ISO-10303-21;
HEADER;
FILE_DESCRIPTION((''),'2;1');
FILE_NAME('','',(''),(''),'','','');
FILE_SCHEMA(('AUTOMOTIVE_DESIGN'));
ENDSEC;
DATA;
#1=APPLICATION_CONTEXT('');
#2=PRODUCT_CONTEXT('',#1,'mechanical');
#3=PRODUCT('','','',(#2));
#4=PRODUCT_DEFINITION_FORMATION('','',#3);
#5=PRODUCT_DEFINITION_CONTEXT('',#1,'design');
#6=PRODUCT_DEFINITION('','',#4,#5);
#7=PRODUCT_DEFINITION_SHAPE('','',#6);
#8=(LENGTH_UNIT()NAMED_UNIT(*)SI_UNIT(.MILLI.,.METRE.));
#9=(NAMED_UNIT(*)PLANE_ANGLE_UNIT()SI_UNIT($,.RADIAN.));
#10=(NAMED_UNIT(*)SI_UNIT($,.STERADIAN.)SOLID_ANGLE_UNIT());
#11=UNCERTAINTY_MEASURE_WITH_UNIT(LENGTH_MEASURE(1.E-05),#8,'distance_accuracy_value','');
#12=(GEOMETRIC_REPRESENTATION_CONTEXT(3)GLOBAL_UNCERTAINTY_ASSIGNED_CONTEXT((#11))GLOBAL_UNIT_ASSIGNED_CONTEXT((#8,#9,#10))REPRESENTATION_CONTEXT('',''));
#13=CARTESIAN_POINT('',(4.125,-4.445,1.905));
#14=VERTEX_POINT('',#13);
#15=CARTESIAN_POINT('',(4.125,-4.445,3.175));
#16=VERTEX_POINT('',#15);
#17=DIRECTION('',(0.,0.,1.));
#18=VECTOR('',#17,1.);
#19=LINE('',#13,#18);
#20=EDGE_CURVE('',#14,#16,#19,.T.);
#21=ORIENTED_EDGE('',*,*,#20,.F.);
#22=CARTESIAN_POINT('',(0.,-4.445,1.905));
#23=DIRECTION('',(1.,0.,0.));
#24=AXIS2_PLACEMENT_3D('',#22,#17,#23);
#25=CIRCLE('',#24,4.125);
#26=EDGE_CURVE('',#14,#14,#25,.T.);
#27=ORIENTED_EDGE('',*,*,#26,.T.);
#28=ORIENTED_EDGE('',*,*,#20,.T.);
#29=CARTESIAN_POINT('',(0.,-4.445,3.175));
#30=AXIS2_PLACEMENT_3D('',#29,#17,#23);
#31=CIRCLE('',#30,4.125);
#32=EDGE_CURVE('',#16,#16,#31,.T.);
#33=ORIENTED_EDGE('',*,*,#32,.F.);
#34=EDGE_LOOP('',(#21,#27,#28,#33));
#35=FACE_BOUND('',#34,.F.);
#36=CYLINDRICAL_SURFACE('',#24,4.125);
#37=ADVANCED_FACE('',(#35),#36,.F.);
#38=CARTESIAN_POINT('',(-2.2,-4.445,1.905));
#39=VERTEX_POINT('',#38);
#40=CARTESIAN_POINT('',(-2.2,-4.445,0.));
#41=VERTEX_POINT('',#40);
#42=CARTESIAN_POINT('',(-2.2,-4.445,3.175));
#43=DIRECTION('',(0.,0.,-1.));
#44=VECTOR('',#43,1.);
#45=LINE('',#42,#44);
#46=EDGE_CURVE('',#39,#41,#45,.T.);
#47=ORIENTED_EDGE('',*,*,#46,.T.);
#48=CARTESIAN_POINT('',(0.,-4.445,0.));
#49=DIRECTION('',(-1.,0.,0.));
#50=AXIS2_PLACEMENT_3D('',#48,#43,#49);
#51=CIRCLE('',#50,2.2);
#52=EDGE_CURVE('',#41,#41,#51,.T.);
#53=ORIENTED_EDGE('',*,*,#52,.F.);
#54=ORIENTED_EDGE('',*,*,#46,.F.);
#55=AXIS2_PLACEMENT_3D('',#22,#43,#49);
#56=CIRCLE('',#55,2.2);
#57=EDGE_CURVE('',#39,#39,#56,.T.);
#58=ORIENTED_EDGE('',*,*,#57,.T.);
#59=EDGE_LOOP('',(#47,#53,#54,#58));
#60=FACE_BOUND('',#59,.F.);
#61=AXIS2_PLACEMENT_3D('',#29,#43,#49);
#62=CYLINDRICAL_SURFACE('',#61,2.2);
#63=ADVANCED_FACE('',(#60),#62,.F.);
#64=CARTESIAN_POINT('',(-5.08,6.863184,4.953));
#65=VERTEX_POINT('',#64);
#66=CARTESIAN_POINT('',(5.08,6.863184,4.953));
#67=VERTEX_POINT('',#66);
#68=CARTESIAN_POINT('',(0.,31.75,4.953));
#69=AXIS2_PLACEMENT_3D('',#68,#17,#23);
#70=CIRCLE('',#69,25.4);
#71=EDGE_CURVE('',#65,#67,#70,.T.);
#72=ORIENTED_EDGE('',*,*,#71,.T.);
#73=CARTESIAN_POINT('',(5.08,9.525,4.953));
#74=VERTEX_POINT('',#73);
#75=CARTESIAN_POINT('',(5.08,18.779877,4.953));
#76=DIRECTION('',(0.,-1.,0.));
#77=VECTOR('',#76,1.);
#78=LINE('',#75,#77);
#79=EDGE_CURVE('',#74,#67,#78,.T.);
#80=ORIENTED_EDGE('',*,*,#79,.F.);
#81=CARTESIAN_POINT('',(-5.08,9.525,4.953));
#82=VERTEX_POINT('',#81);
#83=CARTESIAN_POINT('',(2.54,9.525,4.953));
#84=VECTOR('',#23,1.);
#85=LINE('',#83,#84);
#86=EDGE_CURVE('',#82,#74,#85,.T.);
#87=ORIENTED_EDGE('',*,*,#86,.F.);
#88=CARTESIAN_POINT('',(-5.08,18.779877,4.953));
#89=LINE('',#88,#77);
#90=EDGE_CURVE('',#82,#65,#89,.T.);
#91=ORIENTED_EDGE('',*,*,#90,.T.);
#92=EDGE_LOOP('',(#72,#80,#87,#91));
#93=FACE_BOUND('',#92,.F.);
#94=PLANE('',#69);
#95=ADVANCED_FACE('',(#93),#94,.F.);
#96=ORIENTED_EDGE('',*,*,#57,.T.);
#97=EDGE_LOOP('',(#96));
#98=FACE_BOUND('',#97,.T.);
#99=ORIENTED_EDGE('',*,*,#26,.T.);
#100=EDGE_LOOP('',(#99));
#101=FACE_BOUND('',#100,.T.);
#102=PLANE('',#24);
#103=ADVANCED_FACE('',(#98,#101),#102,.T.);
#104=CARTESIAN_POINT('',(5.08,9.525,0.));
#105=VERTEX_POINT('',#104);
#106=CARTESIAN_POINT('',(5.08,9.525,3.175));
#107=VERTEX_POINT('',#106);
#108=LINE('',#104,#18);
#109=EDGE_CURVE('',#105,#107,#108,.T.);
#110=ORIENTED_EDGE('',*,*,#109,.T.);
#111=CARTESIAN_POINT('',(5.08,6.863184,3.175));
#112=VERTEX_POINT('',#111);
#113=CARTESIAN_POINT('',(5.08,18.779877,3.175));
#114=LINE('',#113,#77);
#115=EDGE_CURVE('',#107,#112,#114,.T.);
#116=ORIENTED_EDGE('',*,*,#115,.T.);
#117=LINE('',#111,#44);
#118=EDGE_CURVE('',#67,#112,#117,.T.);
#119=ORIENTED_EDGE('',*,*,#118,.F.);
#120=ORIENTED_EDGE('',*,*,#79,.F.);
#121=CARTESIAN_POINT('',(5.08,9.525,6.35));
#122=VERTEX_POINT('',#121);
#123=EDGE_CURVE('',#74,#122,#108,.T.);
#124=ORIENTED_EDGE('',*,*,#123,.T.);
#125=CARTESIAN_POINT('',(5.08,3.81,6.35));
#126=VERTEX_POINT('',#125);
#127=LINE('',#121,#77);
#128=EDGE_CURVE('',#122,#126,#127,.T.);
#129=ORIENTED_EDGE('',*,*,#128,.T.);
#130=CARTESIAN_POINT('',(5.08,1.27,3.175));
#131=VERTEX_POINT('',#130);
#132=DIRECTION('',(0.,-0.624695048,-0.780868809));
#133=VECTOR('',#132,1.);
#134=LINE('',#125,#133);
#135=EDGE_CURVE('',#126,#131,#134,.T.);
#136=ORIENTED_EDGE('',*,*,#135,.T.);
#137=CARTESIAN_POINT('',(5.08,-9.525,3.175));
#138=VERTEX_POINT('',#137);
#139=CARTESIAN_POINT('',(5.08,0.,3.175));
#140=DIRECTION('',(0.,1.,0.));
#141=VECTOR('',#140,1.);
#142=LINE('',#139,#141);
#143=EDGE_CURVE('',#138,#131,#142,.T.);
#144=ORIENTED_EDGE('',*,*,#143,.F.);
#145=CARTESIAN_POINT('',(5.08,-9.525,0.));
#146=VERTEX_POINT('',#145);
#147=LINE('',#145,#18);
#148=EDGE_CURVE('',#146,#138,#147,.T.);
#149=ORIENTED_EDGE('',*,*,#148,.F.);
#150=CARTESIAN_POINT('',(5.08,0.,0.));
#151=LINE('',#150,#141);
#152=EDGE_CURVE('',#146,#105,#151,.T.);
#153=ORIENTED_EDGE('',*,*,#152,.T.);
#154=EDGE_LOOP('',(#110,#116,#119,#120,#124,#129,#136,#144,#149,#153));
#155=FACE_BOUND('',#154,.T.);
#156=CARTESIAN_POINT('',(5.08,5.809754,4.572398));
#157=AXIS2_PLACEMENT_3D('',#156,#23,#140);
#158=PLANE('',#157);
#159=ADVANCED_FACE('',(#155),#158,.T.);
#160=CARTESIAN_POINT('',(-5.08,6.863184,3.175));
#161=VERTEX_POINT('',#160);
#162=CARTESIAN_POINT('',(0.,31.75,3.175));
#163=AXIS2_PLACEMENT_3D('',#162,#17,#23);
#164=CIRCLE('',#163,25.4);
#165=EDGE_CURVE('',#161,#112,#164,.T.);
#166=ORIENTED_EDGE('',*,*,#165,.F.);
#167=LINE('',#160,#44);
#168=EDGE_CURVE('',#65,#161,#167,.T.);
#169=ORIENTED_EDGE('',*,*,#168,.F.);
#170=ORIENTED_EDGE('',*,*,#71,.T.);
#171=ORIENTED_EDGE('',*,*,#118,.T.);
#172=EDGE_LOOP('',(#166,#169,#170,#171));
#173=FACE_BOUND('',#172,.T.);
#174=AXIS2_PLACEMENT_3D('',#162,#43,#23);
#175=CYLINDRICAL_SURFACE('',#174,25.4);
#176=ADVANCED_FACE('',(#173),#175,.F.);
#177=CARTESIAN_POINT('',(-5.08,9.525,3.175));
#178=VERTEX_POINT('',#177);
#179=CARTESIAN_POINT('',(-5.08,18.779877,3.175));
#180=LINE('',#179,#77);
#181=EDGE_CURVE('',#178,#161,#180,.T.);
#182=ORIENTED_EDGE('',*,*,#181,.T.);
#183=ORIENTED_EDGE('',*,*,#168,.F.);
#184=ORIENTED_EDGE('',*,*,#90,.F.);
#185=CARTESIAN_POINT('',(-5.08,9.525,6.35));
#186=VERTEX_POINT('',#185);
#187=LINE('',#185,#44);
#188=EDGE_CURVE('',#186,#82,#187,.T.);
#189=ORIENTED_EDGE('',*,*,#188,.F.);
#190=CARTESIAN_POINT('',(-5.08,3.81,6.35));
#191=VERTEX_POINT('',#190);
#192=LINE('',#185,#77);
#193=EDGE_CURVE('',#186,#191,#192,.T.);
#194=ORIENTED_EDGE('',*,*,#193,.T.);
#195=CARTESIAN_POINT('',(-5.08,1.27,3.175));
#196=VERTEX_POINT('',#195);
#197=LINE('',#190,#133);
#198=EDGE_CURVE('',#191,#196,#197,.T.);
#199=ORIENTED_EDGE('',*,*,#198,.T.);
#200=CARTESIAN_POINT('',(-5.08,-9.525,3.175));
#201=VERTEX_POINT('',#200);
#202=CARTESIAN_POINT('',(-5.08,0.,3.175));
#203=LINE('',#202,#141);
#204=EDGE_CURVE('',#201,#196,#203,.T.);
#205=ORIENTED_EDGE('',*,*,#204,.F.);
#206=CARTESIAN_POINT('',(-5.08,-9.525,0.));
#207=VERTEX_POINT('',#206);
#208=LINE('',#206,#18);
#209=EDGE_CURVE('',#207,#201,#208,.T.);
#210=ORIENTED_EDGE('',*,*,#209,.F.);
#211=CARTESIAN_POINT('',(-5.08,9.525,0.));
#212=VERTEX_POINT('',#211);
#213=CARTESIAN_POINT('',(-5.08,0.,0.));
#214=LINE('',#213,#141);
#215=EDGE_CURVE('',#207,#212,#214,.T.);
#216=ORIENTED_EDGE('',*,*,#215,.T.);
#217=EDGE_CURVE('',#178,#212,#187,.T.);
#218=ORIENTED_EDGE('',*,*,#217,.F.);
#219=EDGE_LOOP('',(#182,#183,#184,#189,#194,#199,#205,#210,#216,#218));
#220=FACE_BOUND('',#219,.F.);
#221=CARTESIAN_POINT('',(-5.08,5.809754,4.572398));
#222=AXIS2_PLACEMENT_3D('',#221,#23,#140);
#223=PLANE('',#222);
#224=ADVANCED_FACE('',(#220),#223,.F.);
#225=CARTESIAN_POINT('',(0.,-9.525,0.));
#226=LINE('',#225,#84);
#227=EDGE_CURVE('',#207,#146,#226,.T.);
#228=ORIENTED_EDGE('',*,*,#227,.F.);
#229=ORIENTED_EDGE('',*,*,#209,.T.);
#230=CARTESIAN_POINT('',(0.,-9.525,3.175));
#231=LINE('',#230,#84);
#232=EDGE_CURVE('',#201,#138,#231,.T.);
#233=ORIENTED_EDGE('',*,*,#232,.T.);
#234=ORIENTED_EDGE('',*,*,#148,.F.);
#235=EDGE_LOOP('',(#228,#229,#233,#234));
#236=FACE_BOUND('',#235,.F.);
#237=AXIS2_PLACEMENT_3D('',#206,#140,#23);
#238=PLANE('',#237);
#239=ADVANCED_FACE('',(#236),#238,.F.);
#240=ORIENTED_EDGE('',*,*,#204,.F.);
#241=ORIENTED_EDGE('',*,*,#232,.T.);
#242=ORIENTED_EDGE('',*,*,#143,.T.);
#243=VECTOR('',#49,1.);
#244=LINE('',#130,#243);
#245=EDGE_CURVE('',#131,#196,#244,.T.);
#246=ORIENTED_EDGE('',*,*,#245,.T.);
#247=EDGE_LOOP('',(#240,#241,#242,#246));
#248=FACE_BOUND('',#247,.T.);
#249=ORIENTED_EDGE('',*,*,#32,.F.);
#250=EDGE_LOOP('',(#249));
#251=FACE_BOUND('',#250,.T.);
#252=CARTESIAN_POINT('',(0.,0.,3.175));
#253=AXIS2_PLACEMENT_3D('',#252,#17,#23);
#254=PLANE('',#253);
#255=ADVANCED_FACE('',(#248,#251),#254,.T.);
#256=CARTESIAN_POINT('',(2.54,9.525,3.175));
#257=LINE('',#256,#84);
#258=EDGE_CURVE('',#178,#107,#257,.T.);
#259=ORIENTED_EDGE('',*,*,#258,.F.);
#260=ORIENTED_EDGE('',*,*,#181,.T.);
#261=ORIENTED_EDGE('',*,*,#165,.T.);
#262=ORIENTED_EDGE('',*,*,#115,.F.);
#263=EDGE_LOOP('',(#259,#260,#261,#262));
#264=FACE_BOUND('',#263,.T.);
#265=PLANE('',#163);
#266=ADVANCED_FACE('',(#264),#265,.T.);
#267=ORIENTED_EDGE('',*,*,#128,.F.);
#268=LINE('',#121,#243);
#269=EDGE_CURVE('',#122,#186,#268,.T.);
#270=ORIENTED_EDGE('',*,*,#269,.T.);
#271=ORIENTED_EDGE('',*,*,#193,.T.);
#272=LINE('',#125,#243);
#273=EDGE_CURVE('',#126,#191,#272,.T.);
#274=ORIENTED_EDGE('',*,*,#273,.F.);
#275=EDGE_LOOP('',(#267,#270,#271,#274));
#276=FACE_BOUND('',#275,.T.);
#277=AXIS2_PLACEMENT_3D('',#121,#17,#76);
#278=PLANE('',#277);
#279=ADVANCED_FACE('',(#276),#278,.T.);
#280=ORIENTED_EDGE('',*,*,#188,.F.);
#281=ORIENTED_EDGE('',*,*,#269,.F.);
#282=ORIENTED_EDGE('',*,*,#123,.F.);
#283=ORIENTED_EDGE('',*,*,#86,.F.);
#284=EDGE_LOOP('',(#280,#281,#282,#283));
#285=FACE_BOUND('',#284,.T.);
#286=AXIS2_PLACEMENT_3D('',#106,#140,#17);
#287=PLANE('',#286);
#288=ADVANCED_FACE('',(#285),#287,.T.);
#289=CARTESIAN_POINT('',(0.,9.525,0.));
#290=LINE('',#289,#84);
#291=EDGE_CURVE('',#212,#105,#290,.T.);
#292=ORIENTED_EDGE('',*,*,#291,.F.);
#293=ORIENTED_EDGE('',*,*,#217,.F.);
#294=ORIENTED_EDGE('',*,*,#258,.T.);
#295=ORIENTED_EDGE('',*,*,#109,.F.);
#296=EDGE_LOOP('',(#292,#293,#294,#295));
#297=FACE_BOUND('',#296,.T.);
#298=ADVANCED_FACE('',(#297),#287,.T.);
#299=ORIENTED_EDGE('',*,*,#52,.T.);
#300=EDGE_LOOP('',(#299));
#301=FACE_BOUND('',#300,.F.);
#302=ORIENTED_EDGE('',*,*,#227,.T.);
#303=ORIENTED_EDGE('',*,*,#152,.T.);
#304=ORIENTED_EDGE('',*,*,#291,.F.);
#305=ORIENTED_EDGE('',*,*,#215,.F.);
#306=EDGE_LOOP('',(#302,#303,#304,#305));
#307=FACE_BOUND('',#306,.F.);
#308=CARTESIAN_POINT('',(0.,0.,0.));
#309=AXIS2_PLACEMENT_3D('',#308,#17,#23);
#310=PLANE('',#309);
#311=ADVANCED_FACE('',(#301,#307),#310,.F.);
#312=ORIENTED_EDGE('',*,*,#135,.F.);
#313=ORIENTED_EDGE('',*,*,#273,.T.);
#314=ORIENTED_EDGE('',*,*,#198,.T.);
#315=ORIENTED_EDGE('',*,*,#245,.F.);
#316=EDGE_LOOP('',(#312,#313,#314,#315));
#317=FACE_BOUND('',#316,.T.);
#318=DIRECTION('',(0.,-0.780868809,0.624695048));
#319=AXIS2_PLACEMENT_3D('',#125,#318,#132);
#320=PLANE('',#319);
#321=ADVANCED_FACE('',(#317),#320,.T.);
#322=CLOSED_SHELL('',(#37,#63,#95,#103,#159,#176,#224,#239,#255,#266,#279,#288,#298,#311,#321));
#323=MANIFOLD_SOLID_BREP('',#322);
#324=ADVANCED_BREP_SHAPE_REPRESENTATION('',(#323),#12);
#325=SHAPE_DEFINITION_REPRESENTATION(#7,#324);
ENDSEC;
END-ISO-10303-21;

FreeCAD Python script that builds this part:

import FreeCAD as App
import Part
import Sketcher
Q = App.Units.Quantity


def add_polygon(sketch, points):
    """Adds a closed chain of lines whose ends are joined by coincident constraints."""
    first, n = sketch.GeometryCount, len(points)
    for a, b in zip(points, points[1:] + points[:1]):
        sketch.addGeometry(Part.LineSegment(App.Vector(*a, 0), App.Vector(*b, 0)), False)
    for i in range(n):
        sketch.addConstraint(Sketcher.Constraint("Coincident", first + i, 2, first + (i + 1) % n, 1))

doc = App.newDocument("Part")
params = doc.addObject("Spreadsheet::Sheet", "Params")
for row, (alias, value) in enumerate([
    ("sketch1_width", "0.4 in"),
    ("sketch1_height", "0.75 in"),
    ("pad1_length", "0.125 in"),
    ("sketch2_width", "0.325 in"),
    ("sketch2_height", "0.125 in"),
    ("pad2_length", "0.4 in"),
    ("hole_diameter", "4.4 mm"),
    ("hole_depth", "0.5 in"),
    ("hole_cbore_diameter", "8.25 mm"),
    ("hole_cbore_depth", "0.05 in"),
    ("sketch4_diameter", "2 in"),
    ("pocket1_length", "0.07 in"),
], start=1):
    params.set(f"A{row}", alias)
    params.set(f"B{row}", "=" + value)
    params.setAlias(f"B{row}", alias)

body = doc.addObject("PartDesign::Body", "Body")

# Sketch on XY plane
sketch1 = body.newObject("Sketcher::SketchObject", "Sketch")
sketch1.AttachmentSupport = (doc.getObject("XY_Plane"), [""])
sketch1.MapMode = "FlatFace"
add_polygon(sketch1, [(-5, 10), (-5, -10), (5, -10), (5, 10)])  # lines 0-3
sketch1.addConstraint([
    Sketcher.Constraint("Vertical", 0),
    Sketcher.Constraint("Horizontal", 1),
    Sketcher.Constraint("Vertical", 2),
    Sketcher.Constraint("Horizontal", 3),
    Sketcher.Constraint("Symmetric", 0, 2, 2, 2, -1, 1),
    Sketcher.Constraint("DistanceX", 1, 1, 1, 2, Q("0.4 in")),
    Sketcher.Constraint("DistanceY", 0, 2, 0, 1, Q("0.75 in")),
])
sketch1.setExpression("Constraints[9]", "Params.sketch1_width")
sketch1.setExpression("Constraints[10]", "Params.sketch1_height")
pad1 = body.newObject("PartDesign::Pad", "Pad")
pad1.Profile = sketch1
pad1.setExpression("Length", "Params.pad1_length")

# Sketch on YZ plane
sketch2 = body.newObject("Sketcher::SketchObject", "Sketch001")
sketch2.AttachmentSupport = (doc.getObject("YZ_Plane"), [""])
sketch2.MapMode = "FlatFace"
sketch2.AttachmentOffset = App.Placement(App.Vector(0, 0, 0.2 * 25.4), App.Rotation())
add_polygon(sketch2, [(3.8, 6.3), (1.3, 3.2), (9.5, 3.2), (9.5, 6.3)])  # lines 0-3
sketch2.addConstraint([
    Sketcher.Constraint("Horizontal", 1),
    Sketcher.Constraint("Vertical", 2),
    Sketcher.Constraint("Horizontal", 3),
    Sketcher.Constraint("DistanceX", 0, 2, 3, 2, Q("0.1 in")),
    Sketcher.Constraint("DistanceX", 1, 1, 1, 2, Q("0.325 in")),
    Sketcher.Constraint("DistanceY", 2, 1, 2, 2, Q("0.125 in")),
    Sketcher.Constraint("DistanceX", -1, 1, 0, 2, Q("0.05 in")),
    Sketcher.Constraint("DistanceY", -1, 1, 2, 2, Q("0.25 in")),
])
sketch2.setExpression("Constraints[8]", "Params.sketch2_width")
sketch2.setExpression("Constraints[9]", "Params.sketch2_height")
pad2 = body.newObject("PartDesign::Pad", "Pad001")
pad2.Profile = sketch2
pad2.setExpression("Length", "Params.pad2_length")
pad2.Reversed = True

# Sketch on XY plane
sketch3 = body.newObject("Sketcher::SketchObject", "Sketch002")
sketch3.AttachmentSupport = (doc.getObject("XY_Plane"), [""])
sketch3.MapMode = "FlatFace"
sketch3.AttachmentOffset = App.Placement(App.Vector(0, 0, 0.125 * 25.4), App.Rotation())
sketch3.addGeometry(Part.Circle(App.Vector(0, -4.4, 0), App.Vector(0, 0, 1), 2.2), False)
sketch3.addConstraint([
    Sketcher.Constraint("PointOnObject", 0, 3, -2),
    Sketcher.Constraint("Diameter", 0, 4.4),
    Sketcher.Constraint("DistanceY", 0, 3, -1, 1, Q("0.175 in")),
])
doc.recompute()
hole = body.newObject("PartDesign::Hole", "Hole")
hole.Profile = sketch3
hole.ThreadType = "None"
hole.setExpression("Diameter", "Params.hole_diameter")
hole.DepthType = "Dimension"
hole.setExpression("Depth", "Params.hole_depth")
hole.DrillPoint = "Flat"
hole.HoleCutType = "Counterbore"
hole.setExpression("HoleCutDiameter", "Params.hole_cbore_diameter")
hole.setExpression("HoleCutDepth", "Params.hole_cbore_depth")

# Sketch on XY plane
sketch4 = body.newObject("Sketcher::SketchObject", "Sketch003")
sketch4.AttachmentSupport = (doc.getObject("XY_Plane"), [""])
sketch4.MapMode = "FlatFace"
sketch4.AttachmentOffset = App.Placement(App.Vector(0, 0, 0.125 * 25.4), App.Rotation())
sketch4.addGeometry(Part.Circle(App.Vector(0, 32, 0), App.Vector(0, 0, 1), 25), False)
sketch4.addConstraint([
    Sketcher.Constraint("PointOnObject", 0, 3, -2),
    Sketcher.Constraint("Diameter", 0, Q("2 in")),
    Sketcher.Constraint("DistanceY", -1, 1, 0, 3, Q("1.25 in")),
])
sketch4.setExpression("Constraints[1]", "Params.sketch4_diameter")
pocket1 = body.newObject("PartDesign::Pocket", "Pocket")
pocket1.Profile = sketch4
pocket1.setExpression("Length", "Params.pocket1_length")
pocket1.Reversed = True

doc.recompute()
